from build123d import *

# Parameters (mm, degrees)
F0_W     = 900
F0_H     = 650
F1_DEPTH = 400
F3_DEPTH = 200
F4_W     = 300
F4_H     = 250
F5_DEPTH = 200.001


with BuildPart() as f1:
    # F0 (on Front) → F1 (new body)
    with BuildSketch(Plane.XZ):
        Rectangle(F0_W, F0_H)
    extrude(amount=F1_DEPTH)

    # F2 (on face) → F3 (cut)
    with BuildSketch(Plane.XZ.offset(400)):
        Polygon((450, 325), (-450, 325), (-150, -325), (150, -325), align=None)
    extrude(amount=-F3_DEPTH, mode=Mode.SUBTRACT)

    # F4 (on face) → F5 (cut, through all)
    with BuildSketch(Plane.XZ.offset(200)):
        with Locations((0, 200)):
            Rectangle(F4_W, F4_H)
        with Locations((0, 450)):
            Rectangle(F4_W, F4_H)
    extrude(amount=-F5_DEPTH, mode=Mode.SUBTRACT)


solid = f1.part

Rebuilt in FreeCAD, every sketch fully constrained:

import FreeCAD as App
import Part
import Sketcher
from FreeCAD import Vector
Q = App.Units.Quantity


def add_polygon(sketch, points):
    """Adds a closed chain of lines whose ends are joined by coincident constraints."""
    first, n = sketch.GeometryCount, len(points)
    for a, b in zip(points, points[1:] + points[:1]):
        sketch.addGeometry(Part.LineSegment(App.Vector(*a, 0), App.Vector(*b, 0)), False)
    for i in range(n):
        sketch.addConstraint(Sketcher.Constraint("Coincident", first + i, 2, first + (i + 1) % n, 1))

doc = App.newDocument("Part")
body = doc.addObject("PartDesign::Body", "Body")

# Sketch on XZ plane
sketch1 = doc.addObject("Sketcher::SketchObject", "Sketch")
body.addObject(sketch1)
sketch1.AttachmentSupport = (doc.XZ_Plane, [""])
sketch1.MapMode = "FlatFace"
add_polygon(sketch1, [(-450, 325), (-450, -325), (450, -325), (450, 325)])  # lines 0-3
sketch1.addConstraint(Sketcher.Constraint("Vertical", 0))
sketch1.addConstraint(Sketcher.Constraint("Horizontal", 1))
sketch1.addConstraint(Sketcher.Constraint("Vertical", 2))
sketch1.addConstraint(Sketcher.Constraint("Horizontal", 3))
sketch1.addConstraint(Sketcher.Constraint("Symmetric", 0, 2, 2, 2, -1, 1))
sketch1.addConstraint(Sketcher.Constraint("DistanceX", 1, 1, 1, 2, Q("900 mm")))
sketch1.addConstraint(Sketcher.Constraint("DistanceY", 0, 2, 0, 1, Q("650 mm")))
pad1 = doc.addObject("PartDesign::Pad", "Pad")
body.addObject(pad1)
pad1.Profile = sketch1
pad1.Length = 400

# Sketch on XZ plane
sketch2 = doc.addObject("Sketcher::SketchObject", "Sketch001")
body.addObject(sketch2)
sketch2.AttachmentSupport = (doc.XZ_Plane, [""])
sketch2.MapMode = "FlatFace"
sketch2.AttachmentOffset = App.Placement(Vector(0, 0, 400), App.Rotation())
add_polygon(sketch2, [(450, 325), (-450, 325), (-150, -325), (150, -325)])  # lines 0-3
sketch2.addConstraint(Sketcher.Constraint("Horizontal", 0))
sketch2.addConstraint(Sketcher.Constraint("Horizontal", 2))
sketch2.addConstraint(Sketcher.Constraint("Equal", 1, 3))
sketch2.addConstraint(Sketcher.Constraint("DistanceX", 0, 2, 0, 1, Q("900 mm")))
sketch2.addConstraint(Sketcher.Constraint("DistanceX", 2, 1, 2, 2, Q("300 mm")))
sketch2.addConstraint(Sketcher.Constraint("DistanceX", 0, 2, -1, 1, Q("450 mm")))
sketch2.addConstraint(Sketcher.Constraint("DistanceY", -1, 1, 0, 2, Q("325 mm")))
sketch2.addConstraint(Sketcher.Constraint("DistanceY", 1, 2, -1, 1, Q("325 mm")))
pocket1 = doc.addObject("PartDesign::Pocket", "Pocket")
body.addObject(pocket1)
pocket1.Profile = sketch2
pocket1.Length = 200

# Sketch on XZ plane
sketch3 = doc.addObject("Sketcher::SketchObject", "Sketch002")
body.addObject(sketch3)
sketch3.AttachmentSupport = (doc.XZ_Plane, [""])
sketch3.MapMode = "FlatFace"
sketch3.AttachmentOffset = App.Placement(Vector(0, 0, 200), App.Rotation())
add_polygon(sketch3, [(-150, 75), (150, 75), (150, 575), (-150, 575)])  # lines 0-3
sketch3.addConstraint(Sketcher.Constraint("Horizontal", 0))
sketch3.addConstraint(Sketcher.Constraint("Vertical", 1))
sketch3.addConstraint(Sketcher.Constraint("Horizontal", 2))
sketch3.addConstraint(Sketcher.Constraint("Vertical", 3))
sketch3.addConstraint(Sketcher.Constraint("DistanceX", 0, 1, 0, 2, Q("300 mm")))
sketch3.addConstraint(Sketcher.Constraint("DistanceY", 1, 1, 1, 2, Q("500 mm")))
sketch3.addConstraint(Sketcher.Constraint("DistanceX", -1, 1, 0, 2, Q("150 mm")))
sketch3.addConstraint(Sketcher.Constraint("DistanceY", -1, 1, 0, 2, Q("75 mm")))
pocket2 = doc.addObject("PartDesign::Pocket", "Pocket001")
body.addObject(pocket2)
pocket2.Profile = sketch3
pocket2.Type = "ThroughAll"

doc.recompute()
